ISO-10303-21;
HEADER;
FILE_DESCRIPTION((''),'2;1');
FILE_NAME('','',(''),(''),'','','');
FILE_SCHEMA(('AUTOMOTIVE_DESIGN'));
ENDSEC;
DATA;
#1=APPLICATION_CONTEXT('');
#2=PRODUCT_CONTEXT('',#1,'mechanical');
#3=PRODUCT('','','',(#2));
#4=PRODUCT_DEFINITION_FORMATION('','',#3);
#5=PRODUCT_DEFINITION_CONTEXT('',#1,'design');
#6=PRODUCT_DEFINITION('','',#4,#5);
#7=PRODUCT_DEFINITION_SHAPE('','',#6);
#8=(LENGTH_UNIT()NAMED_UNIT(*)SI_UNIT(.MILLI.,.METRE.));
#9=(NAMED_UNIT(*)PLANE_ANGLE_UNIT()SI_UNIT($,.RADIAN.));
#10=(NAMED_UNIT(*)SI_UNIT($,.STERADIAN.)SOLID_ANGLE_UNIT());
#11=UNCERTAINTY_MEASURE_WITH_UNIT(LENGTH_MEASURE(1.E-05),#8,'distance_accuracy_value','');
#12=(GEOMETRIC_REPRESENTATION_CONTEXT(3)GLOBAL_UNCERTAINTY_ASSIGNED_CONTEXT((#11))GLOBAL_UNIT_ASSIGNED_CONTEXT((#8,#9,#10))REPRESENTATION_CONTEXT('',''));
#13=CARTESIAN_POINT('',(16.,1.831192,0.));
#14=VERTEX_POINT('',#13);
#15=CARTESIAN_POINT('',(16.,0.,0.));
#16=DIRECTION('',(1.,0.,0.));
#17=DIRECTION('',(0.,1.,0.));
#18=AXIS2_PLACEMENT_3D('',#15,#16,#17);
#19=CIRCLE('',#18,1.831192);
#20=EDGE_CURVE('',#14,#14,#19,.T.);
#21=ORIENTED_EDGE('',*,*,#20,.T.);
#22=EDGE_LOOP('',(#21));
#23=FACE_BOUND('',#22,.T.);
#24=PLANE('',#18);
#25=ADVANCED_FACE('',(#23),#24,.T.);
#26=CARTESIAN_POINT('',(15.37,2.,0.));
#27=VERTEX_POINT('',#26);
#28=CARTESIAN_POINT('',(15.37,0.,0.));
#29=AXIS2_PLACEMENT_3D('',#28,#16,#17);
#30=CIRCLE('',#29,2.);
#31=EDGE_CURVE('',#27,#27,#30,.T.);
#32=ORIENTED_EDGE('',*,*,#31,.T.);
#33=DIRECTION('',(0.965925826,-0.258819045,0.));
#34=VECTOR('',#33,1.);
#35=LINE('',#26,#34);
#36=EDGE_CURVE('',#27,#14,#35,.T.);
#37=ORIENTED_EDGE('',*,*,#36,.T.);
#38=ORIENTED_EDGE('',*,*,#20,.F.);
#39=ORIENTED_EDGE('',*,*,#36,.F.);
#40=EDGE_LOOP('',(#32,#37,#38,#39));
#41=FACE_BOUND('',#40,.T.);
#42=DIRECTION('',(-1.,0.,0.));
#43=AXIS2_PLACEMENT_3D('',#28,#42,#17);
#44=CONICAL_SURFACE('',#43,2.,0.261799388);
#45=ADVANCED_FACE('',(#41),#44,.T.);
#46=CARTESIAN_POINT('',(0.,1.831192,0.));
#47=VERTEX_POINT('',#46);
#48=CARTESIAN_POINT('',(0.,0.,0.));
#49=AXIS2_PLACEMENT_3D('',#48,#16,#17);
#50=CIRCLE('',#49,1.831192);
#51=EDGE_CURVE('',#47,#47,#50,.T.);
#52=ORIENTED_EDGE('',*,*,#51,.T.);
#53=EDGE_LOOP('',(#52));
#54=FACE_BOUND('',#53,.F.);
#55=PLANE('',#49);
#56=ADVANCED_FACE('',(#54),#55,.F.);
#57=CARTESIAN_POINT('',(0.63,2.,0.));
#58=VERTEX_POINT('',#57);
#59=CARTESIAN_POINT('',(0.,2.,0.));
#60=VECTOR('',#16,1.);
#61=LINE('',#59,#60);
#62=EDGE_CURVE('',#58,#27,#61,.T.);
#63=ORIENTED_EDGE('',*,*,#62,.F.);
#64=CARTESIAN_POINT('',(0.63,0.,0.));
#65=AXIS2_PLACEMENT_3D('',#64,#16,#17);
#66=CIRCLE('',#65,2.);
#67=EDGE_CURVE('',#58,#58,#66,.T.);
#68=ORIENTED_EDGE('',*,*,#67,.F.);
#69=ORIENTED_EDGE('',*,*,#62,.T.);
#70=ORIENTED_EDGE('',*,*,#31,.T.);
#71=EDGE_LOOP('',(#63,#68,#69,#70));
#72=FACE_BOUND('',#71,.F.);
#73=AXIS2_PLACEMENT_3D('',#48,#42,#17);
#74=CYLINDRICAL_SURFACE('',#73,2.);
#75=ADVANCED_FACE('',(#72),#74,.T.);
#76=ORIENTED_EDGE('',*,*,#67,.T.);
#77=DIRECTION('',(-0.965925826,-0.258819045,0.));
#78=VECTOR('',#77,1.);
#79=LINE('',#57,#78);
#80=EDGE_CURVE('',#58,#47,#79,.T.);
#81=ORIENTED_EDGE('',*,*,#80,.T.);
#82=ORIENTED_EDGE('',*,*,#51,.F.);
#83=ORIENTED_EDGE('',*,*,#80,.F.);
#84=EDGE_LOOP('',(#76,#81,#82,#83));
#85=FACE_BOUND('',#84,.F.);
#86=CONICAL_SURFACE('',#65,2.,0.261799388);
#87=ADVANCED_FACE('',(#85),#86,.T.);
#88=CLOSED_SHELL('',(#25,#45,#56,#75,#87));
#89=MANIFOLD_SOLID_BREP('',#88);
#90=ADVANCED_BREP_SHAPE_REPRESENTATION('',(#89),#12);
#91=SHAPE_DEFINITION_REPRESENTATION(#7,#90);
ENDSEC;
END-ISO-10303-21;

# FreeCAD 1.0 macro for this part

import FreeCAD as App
import Part
import Sketcher
from FreeCAD import Vector
Q = App.Units.Quantity


def edges_at(feature, points):
    """Names of the edges that pass closest to the given points."""
    edges = feature.Shape.Edges
    near = lambda p: min(range(len(edges)), key=lambda i: edges[i].distToShape(Part.Vertex(*p))[0])
    return sorted({f"Edge{near(p) + 1}" for p in points})

doc = App.newDocument("Part")
body = doc.addObject("PartDesign::Body", "Body")

# Sketch on YZ plane
sketch1 = body.newObject("Sketcher::SketchObject", "Sketch")
sketch1.AttachmentSupport = (doc.getObject("YZ_Plane"), [""])
sketch1.MapMode = "FlatFace"
sketch1.addGeometry(Part.Circle(Vector(0, 0, 0), Vector(0, 0, 1), 2), False)
sketch1.addConstraint([
    Sketcher.Constraint("Coincident", 0, 3, -1, 1),
    Sketcher.Constraint("Diameter", 0, Q("4 mm")),
])
pad1 = body.newObject("PartDesign::Pad", "Pad")
pad1.Profile = sketch1
pad1.Length = 16
doc.recompute()

chamfer = body.newObject("PartDesign::Chamfer", "Chamfer")
chamfer.Base = (pad1, edges_at(pad1, [(0, -2, 0)]))
chamfer.ChamferType = "Distance and Angle"
chamfer.Size = 0.63
chamfer.Angle = 15
doc.recompute()

chamfer2 = body.newObject("PartDesign::Chamfer", "Chamfer001")
chamfer2.Base = (chamfer, edges_at(chamfer, [(16, -2, 0)]))
chamfer2.ChamferType = "Distance and Angle"
chamfer2.Size = 0.63
chamfer2.Angle = 15

doc.recompute()
